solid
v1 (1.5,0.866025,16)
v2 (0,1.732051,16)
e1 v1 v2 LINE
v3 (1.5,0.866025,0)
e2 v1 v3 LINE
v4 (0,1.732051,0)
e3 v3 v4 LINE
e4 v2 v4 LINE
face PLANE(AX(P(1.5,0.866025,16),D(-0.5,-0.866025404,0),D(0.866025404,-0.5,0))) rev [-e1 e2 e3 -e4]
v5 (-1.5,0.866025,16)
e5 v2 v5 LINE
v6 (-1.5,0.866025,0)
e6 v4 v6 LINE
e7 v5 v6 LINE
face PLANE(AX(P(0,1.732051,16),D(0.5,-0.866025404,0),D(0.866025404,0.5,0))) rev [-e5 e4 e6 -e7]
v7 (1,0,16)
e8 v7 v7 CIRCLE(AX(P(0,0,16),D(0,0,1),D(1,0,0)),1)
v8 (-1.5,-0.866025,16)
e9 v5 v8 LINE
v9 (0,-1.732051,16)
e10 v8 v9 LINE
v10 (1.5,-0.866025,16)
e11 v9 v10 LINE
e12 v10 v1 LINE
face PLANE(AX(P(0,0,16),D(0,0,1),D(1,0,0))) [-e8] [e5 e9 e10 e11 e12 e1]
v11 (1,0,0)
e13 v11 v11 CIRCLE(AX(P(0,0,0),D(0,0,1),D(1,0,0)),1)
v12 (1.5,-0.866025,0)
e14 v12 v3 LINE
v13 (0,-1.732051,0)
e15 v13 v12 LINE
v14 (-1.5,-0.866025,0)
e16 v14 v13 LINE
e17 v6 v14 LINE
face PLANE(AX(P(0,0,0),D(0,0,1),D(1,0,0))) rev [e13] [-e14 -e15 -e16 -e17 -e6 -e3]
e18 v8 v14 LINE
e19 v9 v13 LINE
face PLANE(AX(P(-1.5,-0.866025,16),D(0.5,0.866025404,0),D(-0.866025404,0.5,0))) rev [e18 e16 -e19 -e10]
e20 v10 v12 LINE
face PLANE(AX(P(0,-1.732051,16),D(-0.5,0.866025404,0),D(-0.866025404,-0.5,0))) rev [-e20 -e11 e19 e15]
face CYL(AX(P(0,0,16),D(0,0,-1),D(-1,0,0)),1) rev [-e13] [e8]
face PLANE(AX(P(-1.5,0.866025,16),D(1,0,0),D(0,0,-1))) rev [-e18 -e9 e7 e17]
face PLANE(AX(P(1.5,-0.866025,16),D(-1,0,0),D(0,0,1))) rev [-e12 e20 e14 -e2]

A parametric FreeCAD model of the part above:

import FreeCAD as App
import Part
import Sketcher
Q = App.Units.Quantity


def add_polygon(sketch, points):
    """Adds a closed chain of lines whose ends are joined by coincident constraints."""
    first, n = sketch.GeometryCount, len(points)
    for a, b in zip(points, points[1:] + points[:1]):
        sketch.addGeometry(Part.LineSegment(App.Vector(*a, 0), App.Vector(*b, 0)), False)
    for i in range(n):
        sketch.addConstraint(Sketcher.Constraint("Coincident", first + i, 2, first + (i + 1) % n, 1))

doc = App.newDocument("Part")
body = doc.addObject("PartDesign::Body", "Body")

sketch1 = body.newObject("Sketcher::SketchObject", "Sketch")
sketch1.AttachmentSupport = (doc.getObject("XY_Plane"), [""])
sketch1.MapMode = "FlatFace"
add_polygon(sketch1, [(1.5, 0.9), (0, 1.7), (-1.5, 0.9), (-1.5, -0.9), (0, -1.7), (1.5, -0.9)])
sketch1.addGeometry(Part.Circle(App.Vector(0, 0, 0), App.Vector(0, 0, 1), 1), False)
sketch1.addConstraint([
    Sketcher.Constraint("Vertical", 2),
    Sketcher.Constraint("Vertical", 5),
    Sketcher.Constraint("Coincident", 6, 3, -1, 1),
    Sketcher.Constraint("Symmetric", 0, 2, 3, 2, -1, 1),
    Sketcher.Constraint("Symmetric", 1, 2, 4, 2, -1, 1),
    Sketcher.Constraint("PointOnObject", 0, 2, -2),
    Sketcher.Constraint("Parallel", 0, 3),
    Sketcher.Constraint("Horizontal", 2, 2, 4, 2),
    Sketcher.Constraint("Diameter", 6, Q("2 mm")),
    Sketcher.Constraint("Angle", 0, Q("150 deg")),
    Sketcher.Constraint("DistanceX", 2, 2, 4, 2, Q("3 mm")),
    Sketcher.Constraint("DistanceY", 2, 2, 2, 1, Q("1.732051 mm")),
])
pad1 = body.newObject("PartDesign::Pad", "Pad")
pad1.Profile = sketch1
pad1.Length = 16

doc.recompute()
